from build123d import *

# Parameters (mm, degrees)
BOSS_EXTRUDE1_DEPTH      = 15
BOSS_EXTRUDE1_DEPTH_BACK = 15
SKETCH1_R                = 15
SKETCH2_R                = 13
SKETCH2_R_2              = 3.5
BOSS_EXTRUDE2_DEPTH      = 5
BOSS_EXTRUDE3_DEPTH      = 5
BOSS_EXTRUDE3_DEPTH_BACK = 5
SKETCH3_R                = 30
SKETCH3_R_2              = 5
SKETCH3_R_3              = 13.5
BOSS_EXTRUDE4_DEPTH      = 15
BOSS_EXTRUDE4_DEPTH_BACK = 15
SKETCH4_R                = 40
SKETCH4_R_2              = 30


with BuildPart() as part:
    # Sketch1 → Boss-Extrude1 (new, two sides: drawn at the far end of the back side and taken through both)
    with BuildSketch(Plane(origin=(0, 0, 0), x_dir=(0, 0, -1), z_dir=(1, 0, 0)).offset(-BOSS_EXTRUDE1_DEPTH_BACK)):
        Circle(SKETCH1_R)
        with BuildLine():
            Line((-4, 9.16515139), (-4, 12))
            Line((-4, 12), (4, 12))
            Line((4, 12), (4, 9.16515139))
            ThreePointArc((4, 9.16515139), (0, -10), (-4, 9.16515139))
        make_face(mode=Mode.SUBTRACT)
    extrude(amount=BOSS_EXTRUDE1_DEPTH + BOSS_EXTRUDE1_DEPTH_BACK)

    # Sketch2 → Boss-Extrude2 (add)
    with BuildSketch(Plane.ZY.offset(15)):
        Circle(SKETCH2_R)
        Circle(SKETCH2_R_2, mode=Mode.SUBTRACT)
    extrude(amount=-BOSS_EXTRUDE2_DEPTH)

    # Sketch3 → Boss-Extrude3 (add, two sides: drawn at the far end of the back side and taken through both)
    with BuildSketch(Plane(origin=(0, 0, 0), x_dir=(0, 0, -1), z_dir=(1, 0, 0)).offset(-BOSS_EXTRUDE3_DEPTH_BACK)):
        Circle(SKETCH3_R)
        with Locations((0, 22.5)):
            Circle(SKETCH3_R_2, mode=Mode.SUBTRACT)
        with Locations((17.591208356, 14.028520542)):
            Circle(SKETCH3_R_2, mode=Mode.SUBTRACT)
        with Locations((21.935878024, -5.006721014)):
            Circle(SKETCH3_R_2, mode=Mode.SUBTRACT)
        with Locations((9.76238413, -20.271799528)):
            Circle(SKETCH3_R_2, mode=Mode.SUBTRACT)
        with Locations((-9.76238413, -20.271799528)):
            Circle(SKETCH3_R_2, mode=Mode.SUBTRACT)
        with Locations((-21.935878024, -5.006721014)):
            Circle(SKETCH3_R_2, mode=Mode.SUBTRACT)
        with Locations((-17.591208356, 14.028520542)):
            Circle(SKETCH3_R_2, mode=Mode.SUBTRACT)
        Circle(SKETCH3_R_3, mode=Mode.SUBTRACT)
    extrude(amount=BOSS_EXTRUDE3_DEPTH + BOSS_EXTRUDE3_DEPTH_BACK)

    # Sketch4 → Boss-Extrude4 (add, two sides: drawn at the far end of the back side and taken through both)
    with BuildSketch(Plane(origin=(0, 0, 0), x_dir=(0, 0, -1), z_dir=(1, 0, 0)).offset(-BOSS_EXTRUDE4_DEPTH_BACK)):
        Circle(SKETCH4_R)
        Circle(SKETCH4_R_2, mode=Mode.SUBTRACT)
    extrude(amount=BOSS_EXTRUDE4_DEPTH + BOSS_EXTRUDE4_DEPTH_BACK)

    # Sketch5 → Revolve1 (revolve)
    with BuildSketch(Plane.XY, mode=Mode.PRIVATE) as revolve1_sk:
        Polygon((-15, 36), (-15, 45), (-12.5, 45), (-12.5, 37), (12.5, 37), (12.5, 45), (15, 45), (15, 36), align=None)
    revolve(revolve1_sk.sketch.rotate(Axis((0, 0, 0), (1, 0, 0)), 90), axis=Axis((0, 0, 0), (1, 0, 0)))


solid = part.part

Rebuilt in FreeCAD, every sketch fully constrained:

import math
import FreeCAD as App
import Part
import Sketcher

V = App.Vector

doc = App.newDocument("Part")
params = doc.addObject("Spreadsheet::Sheet", "Params")
for row, (alias, value) in enumerate([
    ("sketch1_diameter", "30 mm"),
    ("sketch1_radius", "10 mm"),
    ("sketch1_height", "8 mm"),
    ("pad1_length", "15 mm"),
    ("pad1_length2", "15 mm"),
    ("sketch2_diameter", "26 mm"),
    ("sketch2_diameter2", "7 mm"),
    ("pad2_length", "5 mm"),
    ("sketch3_diameter", "60 mm"),
    ("sketch3_diameter2", "10 mm"),
    ("sketch3_diameter3", "27 mm"),
    ("pad3_length", "5 mm"),
    ("pad3_length2", "5 mm"),
    ("sketch4_diameter", "80 mm"),
    ("sketch4_diameter2", "60 mm"),
    ("pad4_length", "15 mm"),
    ("pad4_length2", "15 mm"),
    ("sketch5_width", "30 mm"),
    ("sketch5_width2", "25 mm"),
    ("sketch5_height", "9 mm"),
    ("sketch5_height2", "8 mm"),
    ("revolution_angle", "360 deg"),
], start=1):
    params.set(f"A{row}", alias)
    params.set(f"B{row}", "=" + value)
    params.setAlias(f"B{row}", alias)

body = doc.addObject("PartDesign::Body", "Body")

sketch1 = doc.addObject("Sketcher::SketchObject", "Sketch")
body.addObject(sketch1)
sketch1.AttachmentSupport = (doc.YZ_Plane, [""])
sketch1.MapMode = "FlatFace"
sketch1.addGeometry(Part.Circle(V(0, 0, 0), V(0, 0, 1), 15), False)
sketch1.addGeometry(Part.ArcOfCircle(Part.Circle(V(0, 0, 0), V(0, 0, 1), 10), math.radians(24), math.radians(336)), False)
sketch1.addGeometry(Part.LineSegment(V(9.2, 4, 0), V(12, 4, 0)), False)
sketch1.addGeometry(Part.LineSegment(V(12, 4, 0), V(12, -4, 0)), False)
sketch1.addGeometry(Part.LineSegment(V(12, -4, 0), V(9.2, -4, 0)), False)
sketch1.addConstraint(Sketcher.Constraint("Coincident", 1, 1, 2, 1))
sketch1.addConstraint(Sketcher.Constraint("Coincident", 2, 2, 3, 1))
sketch1.addConstraint(Sketcher.Constraint("Coincident", 3, 2, 4, 1))
sketch1.addConstraint(Sketcher.Constraint("Coincident", 4, 2, 1, 2))
sketch1.addConstraint(Sketcher.Constraint("Horizontal", 2))
sketch1.addConstraint(Sketcher.Constraint("Vertical", 3))
sketch1.addConstraint(Sketcher.Constraint("Horizontal", 4))
sketch1.addConstraint(Sketcher.Constraint("Coincident", 0, 3, -1, 1))
sketch1.addConstraint(Sketcher.Constraint("Coincident", 1, 3, -1, 1))
sketch1.addConstraint(Sketcher.Constraint("Vertical", 1, 1, 4, 2))
sketch1.addConstraint(Sketcher.Constraint("Diameter", 0, 30.0))
sketch1.addConstraint(Sketcher.Constraint("Radius", 1, 10.0))
sketch1.addConstraint(Sketcher.Constraint("DistanceY", 3, 2, 3, 1, 8.0))
sketch1.addConstraint(Sketcher.Constraint("DistanceX", -1, 1, 2, 2, 12.0))
sketch1.setExpression("Constraints[10]", "Params.sketch1_diameter")
sketch1.setExpression("Constraints[11]", "Params.sketch1_radius")
sketch1.setExpression("Constraints[12]", "Params.sketch1_height")
pad1 = doc.addObject("PartDesign::Pad", "Pad")
body.addObject(pad1)
pad1.Profile = sketch1
pad1.Type = "TwoLengths"
pad1.setExpression("Length", "Params.pad1_length")
pad1.setExpression("Length2", "Params.pad1_length2")

sketch2 = doc.addObject("Sketcher::SketchObject", "Sketch001")
body.addObject(sketch2)
sketch2.AttachmentSupport = (doc.YZ_Plane, [""])
sketch2.MapMode = "FlatFace"
sketch2.AttachmentOffset = App.Placement(V(0, 0, -15), App.Rotation())
sketch2.addGeometry(Part.Circle(V(0, 0, 0), V(0, 0, 1), 13), False)
sketch2.addGeometry(Part.Circle(V(0, 0, 0), V(0, 0, 1), 3.5), False)
sketch2.addConstraint(Sketcher.Constraint("Coincident", 0, 3, -1, 1))
sketch2.addConstraint(Sketcher.Constraint("Coincident", 1, 3, -1, 1))
sketch2.addConstraint(Sketcher.Constraint("Diameter", 0, 26.0))
sketch2.addConstraint(Sketcher.Constraint("Diameter", 1, 7.0))
sketch2.setExpression("Constraints[2]", "Params.sketch2_diameter")
sketch2.setExpression("Constraints[3]", "Params.sketch2_diameter2")
pad2 = doc.addObject("PartDesign::Pad", "Pad001")
body.addObject(pad2)
pad2.Profile = sketch2
pad2.setExpression("Length", "Params.pad2_length")

sketch3 = doc.addObject("Sketcher::SketchObject", "Sketch002")
body.addObject(sketch3)
sketch3.AttachmentSupport = (doc.YZ_Plane, [""])
sketch3.MapMode = "FlatFace"
sketch3.addGeometry(Part.Circle(V(0, 0, 0), V(0, 0, 1), 30), False)
sketch3.addGeometry(Part.Circle(V(-20, 10, 0), V(0, 0, 1), 5), False)
sketch3.addGeometry(Part.Circle(V(-5, 22, 0), V(0, 0, 1), 5), False)
sketch3.addGeometry(Part.Circle(V(-20, -10, 0), V(0, 0, 1), 5), False)
sketch3.addGeometry(Part.Circle(V(0, 0, 0), V(0, 0, 1), 14), False)
sketch3.addGeometry(Part.Circle(V(-5, -22, 0), V(0, 0, 1), 5), False)
sketch3.addGeometry(Part.Circle(V(14, 18, 0), V(0, 0, 1), 5), False)
sketch3.addGeometry(Part.Circle(V(14, -18, 0), V(0, 0, 1), 5), False)
sketch3.addGeometry(Part.Circle(V(22, 0, 0), V(0, 0, 1), 5), False)
sketch3.addConstraint(Sketcher.Constraint("Coincident", 0, 3, -1, 1))
sketch3.addConstraint(Sketcher.Constraint("Coincident", 4, 3, -1, 1))
sketch3.addConstraint(Sketcher.Constraint("Equal", 1, 2))
sketch3.addConstraint(Sketcher.Constraint("Equal", 2, 3))
sketch3.addConstraint(Sketcher.Constraint("Equal", 3, 5))
sketch3.addConstraint(Sketcher.Constraint("Equal", 5, 6))
sketch3.addConstraint(Sketcher.Constraint("Equal", 6, 7))
sketch3.addConstraint(Sketcher.Constraint("Equal", 7, 8))
sketch3.addConstraint(Sketcher.Constraint("Symmetric", 1, 3, 3, 3, -1))
sketch3.addConstraint(Sketcher.Constraint("Symmetric", 2, 3, 5, 3, -1))
sketch3.addConstraint(Sketcher.Constraint("Symmetric", 6, 3, 7, 3, -1))
sketch3.addConstraint(Sketcher.Constraint("PointOnObject", 8, 3, -1))
sketch3.addConstraint(Sketcher.Constraint("Diameter", 0, 60.0))
sketch3.addConstraint(Sketcher.Constraint("Diameter", 1, 10.0))
sketch3.addConstraint(Sketcher.Constraint("Diameter", 4, 27.0))
sketch3.addConstraint(Sketcher.Constraint("DistanceX", -1, 1, 8, 3, 22.5))
sketch3.addConstraint(Sketcher.Constraint("DistanceX", 1, 3, -1, 1, 20.2718))
sketch3.addConstraint(Sketcher.Constraint("DistanceX", 2, 3, -1, 1, 5.006721))
sketch3.addConstraint(Sketcher.Constraint("DistanceY", -1, 1, 2, 3, 21.935878))
sketch3.addConstraint(Sketcher.Constraint("DistanceX", -1, 1, 6, 3, 14.028521))
sketch3.addConstraint(Sketcher.Constraint("DistanceY", -1, 1, 6, 3, 17.591208))
sketch3.addConstraint(Sketcher.Constraint("DistanceY", 3, 3, 1, 3, 19.524768))
sketch3.setExpression("Constraints[12]", "Params.sketch3_diameter")
sketch3.setExpression("Constraints[13]", "Params.sketch3_diameter2")
sketch3.setExpression("Constraints[14]", "Params.sketch3_diameter3")
pad3 = doc.addObject("PartDesign::Pad", "Pad002")
body.addObject(pad3)
pad3.Profile = sketch3
pad3.Type = "TwoLengths"
pad3.setExpression("Length", "Params.pad3_length")
pad3.setExpression("Length2", "Params.pad3_length2")

sketch4 = doc.addObject("Sketcher::SketchObject", "Sketch003")
body.addObject(sketch4)
sketch4.AttachmentSupport = (doc.YZ_Plane, [""])
sketch4.MapMode = "FlatFace"
sketch4.addGeometry(Part.Circle(V(0, 0, 0), V(0, 0, 1), 40), False)
sketch4.addGeometry(Part.Circle(V(0, 0, 0), V(0, 0, 1), 30), False)
sketch4.addConstraint(Sketcher.Constraint("Coincident", 0, 3, -1, 1))
sketch4.addConstraint(Sketcher.Constraint("Coincident", 1, 3, -1, 1))
sketch4.addConstraint(Sketcher.Constraint("Diameter", 0, 80.0))
sketch4.addConstraint(Sketcher.Constraint("Diameter", 1, 60.0))
sketch4.setExpression("Constraints[2]", "Params.sketch4_diameter")
sketch4.setExpression("Constraints[3]", "Params.sketch4_diameter2")
pad4 = doc.addObject("PartDesign::Pad", "Pad003")
body.addObject(pad4)
pad4.Profile = sketch4
pad4.Type = "TwoLengths"
pad4.setExpression("Length", "Params.pad4_length")
pad4.setExpression("Length2", "Params.pad4_length2")

sketch5 = doc.addObject("Sketcher::SketchObject", "Sketch004")
body.addObject(sketch5)
sketch5.AttachmentSupport = (doc.XY_Plane, [""])
sketch5.MapMode = "FlatFace"
sketch5.addGeometry(Part.LineSegment(V(-15, 45, 0), V(-15, 36, 0)), False)
sketch5.addGeometry(Part.LineSegment(V(-15, 36, 0), V(15, 36, 0)), False)
sketch5.addGeometry(Part.LineSegment(V(15, 36, 0), V(15, 45, 0)), False)
sketch5.addGeometry(Part.LineSegment(V(15, 45, 0), V(12.5, 45, 0)), False)
sketch5.addGeometry(Part.LineSegment(V(12.5, 45, 0), V(12.5, 37, 0)), False)
sketch5.addGeometry(Part.LineSegment(V(12.5, 37, 0), V(-12.5, 37, 0)), False)
sketch5.addGeometry(Part.LineSegment(V(-12.5, 37, 0), V(-12.5, 45, 0)), False)
sketch5.addGeometry(Part.LineSegment(V(-12.5, 45, 0), V(-15, 45, 0)), False)
sketch5.addConstraint(Sketcher.Constraint("Coincident", 0, 2, 1, 1))
sketch5.addConstraint(Sketcher.Constraint("Coincident", 1, 2, 2, 1))
sketch5.addConstraint(Sketcher.Constraint("Coincident", 2, 2, 3, 1))
sketch5.addConstraint(Sketcher.Constraint("Coincident", 3, 2, 4, 1))
sketch5.addConstraint(Sketcher.Constraint("Coincident", 4, 2, 5, 1))
sketch5.addConstraint(Sketcher.Constraint("Coincident", 5, 2, 6, 1))
sketch5.addConstraint(Sketcher.Constraint("Coincident", 6, 2, 7, 1))
sketch5.addConstraint(Sketcher.Constraint("Coincident", 7, 2, 0, 1))
sketch5.addConstraint(Sketcher.Constraint("Vertical", 0))
sketch5.addConstraint(Sketcher.Constraint("Horizontal", 1))
sketch5.addConstraint(Sketcher.Constraint("Vertical", 2))
sketch5.addConstraint(Sketcher.Constraint("Horizontal", 3))
sketch5.addConstraint(Sketcher.Constraint("Vertical", 4))
sketch5.addConstraint(Sketcher.Constraint("Horizontal", 5))
sketch5.addConstraint(Sketcher.Constraint("Vertical", 6))
sketch5.addConstraint(Sketcher.Constraint("Horizontal", 7))
sketch5.addConstraint(Sketcher.Constraint("Symmetric", 3, 2, 6, 2, -2))
sketch5.addConstraint(Sketcher.Constraint("Equal", 3, 7))
sketch5.addConstraint(Sketcher.Constraint("DistanceX", 1, 1, 1, 2, 30.0))
sketch5.addConstraint(Sketcher.Constraint("DistanceX", 5, 2, 5, 1, 25.0))
sketch5.addConstraint(Sketcher.Constraint("DistanceY", 0, 2, 0, 1, 9.0))
sketch5.addConstraint(Sketcher.Constraint("DistanceY", 4, 2, 4, 1, 8.0))
sketch5.addConstraint(Sketcher.Constraint("DistanceY", -1, 1, 0, 2, 36.0))
sketch5.setExpression("Constraints[18]", "Params.sketch5_width")
sketch5.setExpression("Constraints[19]", "Params.sketch5_width2")
sketch5.setExpression("Constraints[20]", "Params.sketch5_height")
sketch5.setExpression("Constraints[21]", "Params.sketch5_height2")
revolution = doc.addObject("PartDesign::Revolution", "Revolution")
body.addObject(revolution)
revolution.Profile = sketch5
revolution.ReferenceAxis = (sketch5, ["H_Axis"])
revolution.setExpression("Angle", "Params.revolution_angle")

doc.recompute()
